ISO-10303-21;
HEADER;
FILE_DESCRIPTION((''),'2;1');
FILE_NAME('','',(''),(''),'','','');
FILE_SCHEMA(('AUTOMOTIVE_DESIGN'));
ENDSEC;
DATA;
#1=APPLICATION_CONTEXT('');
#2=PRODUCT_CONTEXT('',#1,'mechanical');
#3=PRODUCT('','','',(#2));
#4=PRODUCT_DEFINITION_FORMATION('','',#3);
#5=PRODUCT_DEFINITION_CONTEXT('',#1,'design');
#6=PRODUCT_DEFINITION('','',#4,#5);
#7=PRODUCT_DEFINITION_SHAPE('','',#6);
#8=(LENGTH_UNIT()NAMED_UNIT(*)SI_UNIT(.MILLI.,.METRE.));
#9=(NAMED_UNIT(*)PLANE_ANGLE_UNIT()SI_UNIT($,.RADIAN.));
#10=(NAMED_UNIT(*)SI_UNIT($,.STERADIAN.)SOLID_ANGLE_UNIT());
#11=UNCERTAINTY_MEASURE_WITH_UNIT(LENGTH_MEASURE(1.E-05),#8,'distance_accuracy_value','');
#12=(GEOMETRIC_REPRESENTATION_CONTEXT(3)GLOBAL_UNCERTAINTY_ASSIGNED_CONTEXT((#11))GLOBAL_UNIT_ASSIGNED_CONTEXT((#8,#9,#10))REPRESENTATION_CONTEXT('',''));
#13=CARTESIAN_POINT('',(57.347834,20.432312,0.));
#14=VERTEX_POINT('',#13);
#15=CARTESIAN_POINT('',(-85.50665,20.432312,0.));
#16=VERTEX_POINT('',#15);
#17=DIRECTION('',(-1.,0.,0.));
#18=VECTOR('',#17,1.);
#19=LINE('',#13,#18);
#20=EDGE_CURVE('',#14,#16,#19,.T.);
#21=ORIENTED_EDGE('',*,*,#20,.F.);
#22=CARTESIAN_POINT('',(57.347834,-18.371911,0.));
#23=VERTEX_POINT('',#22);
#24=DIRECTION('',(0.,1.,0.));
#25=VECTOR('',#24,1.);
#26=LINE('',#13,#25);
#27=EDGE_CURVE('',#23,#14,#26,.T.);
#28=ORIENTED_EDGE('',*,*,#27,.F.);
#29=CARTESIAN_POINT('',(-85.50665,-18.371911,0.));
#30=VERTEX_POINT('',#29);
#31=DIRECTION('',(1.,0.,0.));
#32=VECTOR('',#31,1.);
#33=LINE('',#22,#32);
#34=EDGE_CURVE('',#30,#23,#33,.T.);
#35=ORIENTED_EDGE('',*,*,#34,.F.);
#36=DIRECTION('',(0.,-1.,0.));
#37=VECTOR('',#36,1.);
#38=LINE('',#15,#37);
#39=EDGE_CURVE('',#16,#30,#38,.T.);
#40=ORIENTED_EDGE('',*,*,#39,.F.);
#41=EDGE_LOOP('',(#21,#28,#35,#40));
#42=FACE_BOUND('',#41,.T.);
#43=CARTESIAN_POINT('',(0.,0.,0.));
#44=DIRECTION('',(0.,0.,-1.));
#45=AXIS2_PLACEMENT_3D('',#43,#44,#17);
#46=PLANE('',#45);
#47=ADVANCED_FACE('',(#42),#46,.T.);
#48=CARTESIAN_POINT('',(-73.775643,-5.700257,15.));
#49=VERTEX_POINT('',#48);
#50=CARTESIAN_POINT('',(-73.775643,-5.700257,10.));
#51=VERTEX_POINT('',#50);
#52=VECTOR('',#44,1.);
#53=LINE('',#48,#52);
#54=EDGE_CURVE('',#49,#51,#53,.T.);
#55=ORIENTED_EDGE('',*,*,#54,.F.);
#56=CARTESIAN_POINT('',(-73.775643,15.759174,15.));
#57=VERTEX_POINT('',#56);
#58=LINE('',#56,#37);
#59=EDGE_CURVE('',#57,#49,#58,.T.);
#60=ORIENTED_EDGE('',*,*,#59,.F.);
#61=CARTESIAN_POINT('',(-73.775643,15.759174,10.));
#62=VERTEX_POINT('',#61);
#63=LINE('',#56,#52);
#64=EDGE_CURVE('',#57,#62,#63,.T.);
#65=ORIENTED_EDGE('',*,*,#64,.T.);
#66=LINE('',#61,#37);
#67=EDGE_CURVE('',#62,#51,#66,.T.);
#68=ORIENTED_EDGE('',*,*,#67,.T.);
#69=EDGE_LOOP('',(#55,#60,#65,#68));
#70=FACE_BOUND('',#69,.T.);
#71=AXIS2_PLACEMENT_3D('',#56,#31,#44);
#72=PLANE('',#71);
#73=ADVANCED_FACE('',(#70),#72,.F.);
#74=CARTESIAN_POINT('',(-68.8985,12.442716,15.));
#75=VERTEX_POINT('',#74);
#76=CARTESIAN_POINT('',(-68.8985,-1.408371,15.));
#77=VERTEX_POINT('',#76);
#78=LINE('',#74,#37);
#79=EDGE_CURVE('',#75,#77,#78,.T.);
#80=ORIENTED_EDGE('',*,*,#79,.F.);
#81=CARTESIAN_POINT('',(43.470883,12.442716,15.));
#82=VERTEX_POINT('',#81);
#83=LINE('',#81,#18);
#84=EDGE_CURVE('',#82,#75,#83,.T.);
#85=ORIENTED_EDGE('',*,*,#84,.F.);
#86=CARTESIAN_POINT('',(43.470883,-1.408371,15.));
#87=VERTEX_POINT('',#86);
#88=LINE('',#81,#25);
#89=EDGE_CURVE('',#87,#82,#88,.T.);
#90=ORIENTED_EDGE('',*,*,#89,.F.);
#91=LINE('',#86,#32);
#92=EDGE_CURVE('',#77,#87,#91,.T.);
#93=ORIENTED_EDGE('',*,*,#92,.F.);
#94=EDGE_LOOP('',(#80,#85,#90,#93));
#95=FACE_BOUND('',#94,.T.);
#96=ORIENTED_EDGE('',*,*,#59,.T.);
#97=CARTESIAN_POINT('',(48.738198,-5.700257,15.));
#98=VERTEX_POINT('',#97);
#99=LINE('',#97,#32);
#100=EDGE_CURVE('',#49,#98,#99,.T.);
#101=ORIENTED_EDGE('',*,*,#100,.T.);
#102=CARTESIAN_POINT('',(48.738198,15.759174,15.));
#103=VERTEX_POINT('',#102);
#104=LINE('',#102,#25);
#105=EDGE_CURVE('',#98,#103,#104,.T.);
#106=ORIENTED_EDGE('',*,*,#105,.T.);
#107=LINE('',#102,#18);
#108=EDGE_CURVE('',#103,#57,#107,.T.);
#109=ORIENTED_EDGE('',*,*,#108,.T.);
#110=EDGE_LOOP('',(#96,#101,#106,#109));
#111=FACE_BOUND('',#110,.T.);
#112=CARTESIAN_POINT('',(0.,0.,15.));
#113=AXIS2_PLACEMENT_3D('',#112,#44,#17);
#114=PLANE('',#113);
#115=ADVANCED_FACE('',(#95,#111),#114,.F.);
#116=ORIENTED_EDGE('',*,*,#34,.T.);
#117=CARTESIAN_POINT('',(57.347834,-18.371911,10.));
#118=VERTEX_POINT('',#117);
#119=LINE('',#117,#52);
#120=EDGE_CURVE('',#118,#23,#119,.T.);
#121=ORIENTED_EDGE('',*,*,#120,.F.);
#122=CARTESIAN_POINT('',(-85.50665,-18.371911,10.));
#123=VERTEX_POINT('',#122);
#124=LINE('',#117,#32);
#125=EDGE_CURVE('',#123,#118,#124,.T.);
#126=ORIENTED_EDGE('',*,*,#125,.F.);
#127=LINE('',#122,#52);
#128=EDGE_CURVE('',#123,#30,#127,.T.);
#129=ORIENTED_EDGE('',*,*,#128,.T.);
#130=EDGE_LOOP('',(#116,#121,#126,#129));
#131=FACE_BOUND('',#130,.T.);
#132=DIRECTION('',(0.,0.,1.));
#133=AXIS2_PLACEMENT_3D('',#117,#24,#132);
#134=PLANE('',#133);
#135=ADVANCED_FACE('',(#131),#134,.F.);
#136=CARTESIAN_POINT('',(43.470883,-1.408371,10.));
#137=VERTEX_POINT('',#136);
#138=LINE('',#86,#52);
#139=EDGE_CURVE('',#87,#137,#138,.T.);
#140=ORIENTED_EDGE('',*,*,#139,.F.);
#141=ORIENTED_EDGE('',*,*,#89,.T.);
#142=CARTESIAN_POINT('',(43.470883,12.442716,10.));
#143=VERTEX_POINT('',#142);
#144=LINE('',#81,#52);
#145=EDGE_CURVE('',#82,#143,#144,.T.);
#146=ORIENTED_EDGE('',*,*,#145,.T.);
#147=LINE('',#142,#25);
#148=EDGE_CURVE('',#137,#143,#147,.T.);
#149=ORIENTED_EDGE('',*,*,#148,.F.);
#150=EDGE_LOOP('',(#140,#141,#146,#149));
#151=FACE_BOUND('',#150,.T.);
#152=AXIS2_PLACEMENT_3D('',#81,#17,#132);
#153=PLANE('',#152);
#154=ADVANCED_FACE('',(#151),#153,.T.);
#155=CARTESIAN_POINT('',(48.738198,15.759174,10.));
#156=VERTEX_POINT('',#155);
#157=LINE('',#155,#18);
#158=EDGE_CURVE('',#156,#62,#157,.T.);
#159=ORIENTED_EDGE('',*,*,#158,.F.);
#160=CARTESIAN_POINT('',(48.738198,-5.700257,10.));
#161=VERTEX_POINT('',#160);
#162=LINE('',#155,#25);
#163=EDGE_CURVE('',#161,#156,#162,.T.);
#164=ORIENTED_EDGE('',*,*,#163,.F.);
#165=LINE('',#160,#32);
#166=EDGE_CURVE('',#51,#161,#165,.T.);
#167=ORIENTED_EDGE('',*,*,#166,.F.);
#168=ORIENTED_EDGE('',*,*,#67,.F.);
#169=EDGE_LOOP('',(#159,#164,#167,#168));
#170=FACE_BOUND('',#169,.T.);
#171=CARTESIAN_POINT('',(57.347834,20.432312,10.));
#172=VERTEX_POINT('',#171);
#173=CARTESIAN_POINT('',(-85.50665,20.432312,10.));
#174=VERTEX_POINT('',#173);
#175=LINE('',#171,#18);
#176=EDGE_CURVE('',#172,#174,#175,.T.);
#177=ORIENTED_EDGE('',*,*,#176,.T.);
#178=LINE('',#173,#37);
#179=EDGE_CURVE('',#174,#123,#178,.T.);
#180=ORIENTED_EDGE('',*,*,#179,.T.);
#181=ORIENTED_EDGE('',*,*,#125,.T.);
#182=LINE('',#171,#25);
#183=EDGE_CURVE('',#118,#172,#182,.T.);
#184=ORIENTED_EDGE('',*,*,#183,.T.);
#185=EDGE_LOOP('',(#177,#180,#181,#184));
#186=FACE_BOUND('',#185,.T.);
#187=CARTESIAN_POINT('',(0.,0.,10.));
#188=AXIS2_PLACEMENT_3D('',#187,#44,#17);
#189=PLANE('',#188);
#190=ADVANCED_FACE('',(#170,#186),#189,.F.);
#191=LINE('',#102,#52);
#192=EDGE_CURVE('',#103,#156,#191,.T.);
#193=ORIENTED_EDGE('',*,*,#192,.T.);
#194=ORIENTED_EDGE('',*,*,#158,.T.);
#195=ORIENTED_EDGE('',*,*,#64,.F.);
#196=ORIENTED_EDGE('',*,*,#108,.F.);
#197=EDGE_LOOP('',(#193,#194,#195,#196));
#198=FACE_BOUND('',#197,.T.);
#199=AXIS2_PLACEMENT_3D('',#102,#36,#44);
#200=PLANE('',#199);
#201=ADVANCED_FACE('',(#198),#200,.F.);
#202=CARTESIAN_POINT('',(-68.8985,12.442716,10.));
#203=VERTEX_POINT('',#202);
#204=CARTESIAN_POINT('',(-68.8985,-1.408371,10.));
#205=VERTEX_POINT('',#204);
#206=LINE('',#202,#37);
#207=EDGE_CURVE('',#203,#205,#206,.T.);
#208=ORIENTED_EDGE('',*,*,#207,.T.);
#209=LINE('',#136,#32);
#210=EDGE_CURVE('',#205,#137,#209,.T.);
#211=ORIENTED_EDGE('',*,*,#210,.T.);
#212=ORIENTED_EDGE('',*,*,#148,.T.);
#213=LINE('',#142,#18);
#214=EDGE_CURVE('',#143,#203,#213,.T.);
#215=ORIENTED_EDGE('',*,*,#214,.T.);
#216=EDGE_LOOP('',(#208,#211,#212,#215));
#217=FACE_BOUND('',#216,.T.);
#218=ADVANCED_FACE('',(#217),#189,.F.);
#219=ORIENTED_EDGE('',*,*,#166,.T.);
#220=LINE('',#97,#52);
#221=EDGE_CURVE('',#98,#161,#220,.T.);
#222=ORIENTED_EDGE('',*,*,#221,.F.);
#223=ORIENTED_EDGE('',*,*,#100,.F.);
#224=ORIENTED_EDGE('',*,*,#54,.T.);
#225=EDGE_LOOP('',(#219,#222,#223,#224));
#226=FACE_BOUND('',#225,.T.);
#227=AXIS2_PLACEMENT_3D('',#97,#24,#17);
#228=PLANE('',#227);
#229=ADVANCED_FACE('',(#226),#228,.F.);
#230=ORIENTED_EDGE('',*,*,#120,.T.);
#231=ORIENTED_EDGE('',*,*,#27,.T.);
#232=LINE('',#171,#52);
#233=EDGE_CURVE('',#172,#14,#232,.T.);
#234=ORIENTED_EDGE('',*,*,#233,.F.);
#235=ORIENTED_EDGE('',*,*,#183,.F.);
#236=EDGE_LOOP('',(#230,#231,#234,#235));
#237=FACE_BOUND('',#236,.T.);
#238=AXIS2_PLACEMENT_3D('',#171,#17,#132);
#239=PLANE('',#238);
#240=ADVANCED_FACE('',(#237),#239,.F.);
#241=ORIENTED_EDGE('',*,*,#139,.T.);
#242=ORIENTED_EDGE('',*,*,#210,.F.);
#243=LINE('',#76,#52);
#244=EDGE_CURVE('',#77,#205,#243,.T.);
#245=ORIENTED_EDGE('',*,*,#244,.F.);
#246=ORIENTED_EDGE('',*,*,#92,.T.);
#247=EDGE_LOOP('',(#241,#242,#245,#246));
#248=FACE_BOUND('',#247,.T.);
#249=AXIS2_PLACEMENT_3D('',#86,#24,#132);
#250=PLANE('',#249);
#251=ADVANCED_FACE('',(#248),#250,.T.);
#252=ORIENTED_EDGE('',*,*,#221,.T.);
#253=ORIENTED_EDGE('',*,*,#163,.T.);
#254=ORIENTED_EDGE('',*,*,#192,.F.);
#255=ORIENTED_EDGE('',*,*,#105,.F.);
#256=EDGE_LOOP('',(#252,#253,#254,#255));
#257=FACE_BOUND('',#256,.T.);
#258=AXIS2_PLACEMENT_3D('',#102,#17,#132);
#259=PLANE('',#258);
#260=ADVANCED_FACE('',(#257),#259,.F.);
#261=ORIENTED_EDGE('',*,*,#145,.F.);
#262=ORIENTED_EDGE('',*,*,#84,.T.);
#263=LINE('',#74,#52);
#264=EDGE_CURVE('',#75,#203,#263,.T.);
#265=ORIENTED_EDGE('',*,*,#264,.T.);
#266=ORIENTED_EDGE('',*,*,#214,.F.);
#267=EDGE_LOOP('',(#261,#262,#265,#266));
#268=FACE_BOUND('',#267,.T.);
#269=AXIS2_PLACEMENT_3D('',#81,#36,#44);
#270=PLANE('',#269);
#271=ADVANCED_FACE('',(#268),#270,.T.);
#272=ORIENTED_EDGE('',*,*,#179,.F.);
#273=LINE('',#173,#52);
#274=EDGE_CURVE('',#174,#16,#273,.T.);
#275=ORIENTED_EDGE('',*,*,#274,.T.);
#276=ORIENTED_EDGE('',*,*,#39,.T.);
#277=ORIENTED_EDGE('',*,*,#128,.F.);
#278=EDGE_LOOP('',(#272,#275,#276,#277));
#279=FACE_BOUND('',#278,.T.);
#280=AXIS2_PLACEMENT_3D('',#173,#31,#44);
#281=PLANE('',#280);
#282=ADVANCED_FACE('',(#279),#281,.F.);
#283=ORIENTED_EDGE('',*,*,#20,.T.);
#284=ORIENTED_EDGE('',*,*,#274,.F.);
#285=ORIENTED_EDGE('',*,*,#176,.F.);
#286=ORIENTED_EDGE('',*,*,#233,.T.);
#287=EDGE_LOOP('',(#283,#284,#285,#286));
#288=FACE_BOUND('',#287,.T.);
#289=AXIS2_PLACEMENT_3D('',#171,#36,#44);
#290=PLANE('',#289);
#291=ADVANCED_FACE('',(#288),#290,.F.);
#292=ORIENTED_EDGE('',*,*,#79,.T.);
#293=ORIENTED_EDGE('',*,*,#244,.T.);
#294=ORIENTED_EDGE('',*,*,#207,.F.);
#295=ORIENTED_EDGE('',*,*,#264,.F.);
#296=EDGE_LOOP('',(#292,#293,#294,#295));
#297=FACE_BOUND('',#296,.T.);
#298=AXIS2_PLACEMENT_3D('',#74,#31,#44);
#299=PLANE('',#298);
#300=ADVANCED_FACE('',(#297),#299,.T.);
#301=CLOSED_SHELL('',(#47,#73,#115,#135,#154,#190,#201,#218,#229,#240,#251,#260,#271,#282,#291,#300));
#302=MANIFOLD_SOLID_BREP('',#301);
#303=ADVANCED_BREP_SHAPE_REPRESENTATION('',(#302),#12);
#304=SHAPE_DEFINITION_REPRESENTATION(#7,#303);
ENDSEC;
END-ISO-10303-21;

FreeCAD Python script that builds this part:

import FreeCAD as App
import Part
import Sketcher

V = App.Vector


def add_polygon(sketch, points):
    """Adds a closed chain of lines whose ends are joined by coincident constraints."""
    first, n = sketch.GeometryCount, len(points)
    for a, b in zip(points, points[1:] + points[:1]):
        sketch.addGeometry(Part.LineSegment(App.Vector(*a, 0), App.Vector(*b, 0)), False)
    for i in range(n):
        sketch.addConstraint(Sketcher.Constraint("Coincident", first + i, 2, first + (i + 1) % n, 1))

doc = App.newDocument("Part")
params = doc.addObject("Spreadsheet::Sheet", "Params")
for row, (alias, value) in enumerate([
    ("pad1_length", "10 mm"),
    ("pad2_length", "5 mm"),
], start=1):
    params.set(f"A{row}", alias)
    params.set(f"B{row}", "=" + value)
    params.setAlias(f"B{row}", alias)

body = doc.addObject("PartDesign::Body", "Body")

sketch1 = body.newObject("Sketcher::SketchObject", "Sketch")
sketch1.AttachmentSupport = (doc.getObject("XY_Plane"), [""])
sketch1.MapMode = "FlatFace"
add_polygon(sketch1, [(-86, 20), (-86, -18), (57, -18), (57, 20)])
sketch1.addConstraint(Sketcher.Constraint("Vertical", 0))
sketch1.addConstraint(Sketcher.Constraint("Horizontal", 1))
sketch1.addConstraint(Sketcher.Constraint("Vertical", 2))
sketch1.addConstraint(Sketcher.Constraint("Horizontal", 3))
sketch1.addConstraint(Sketcher.Constraint("DistanceX", 1, 1, 1, 2, 142.854484))
sketch1.addConstraint(Sketcher.Constraint("DistanceY", 0, 2, 0, 1, 38.804223))
sketch1.addConstraint(Sketcher.Constraint("DistanceX", 0, 2, -1, 1, 85.50665))
sketch1.addConstraint(Sketcher.Constraint("DistanceY", 0, 2, -1, 1, 18.371911))
pad1 = body.newObject("PartDesign::Pad", "Pad")
pad1.Profile = sketch1
pad1.setExpression("Length", "Params.pad1_length")

sketch2 = body.newObject("Sketcher::SketchObject", "Sketch001")
sketch2.AttachmentSupport = (doc.getObject("XY_Plane"), [""])
sketch2.MapMode = "FlatFace"
sketch2.AttachmentOffset = App.Placement(V(0, 0, 10), App.Rotation())
add_polygon(sketch2, [(-74, 16), (-74, -6), (49, -6), (49, 16)])
add_polygon(sketch2, [(43, -1), (-69, -1), (-69, 12), (43, 12)])
sketch2.addConstraint(Sketcher.Constraint("Vertical", 0))
sketch2.addConstraint(Sketcher.Constraint("Horizontal", 1))
sketch2.addConstraint(Sketcher.Constraint("Vertical", 2))
sketch2.addConstraint(Sketcher.Constraint("Horizontal", 3))
sketch2.addConstraint(Sketcher.Constraint("Horizontal", 4))
sketch2.addConstraint(Sketcher.Constraint("Vertical", 5))
sketch2.addConstraint(Sketcher.Constraint("Horizontal", 6))
sketch2.addConstraint(Sketcher.Constraint("Vertical", 7))
sketch2.addConstraint(Sketcher.Constraint("DistanceX", 1, 1, 1, 2, 122.513842))
sketch2.addConstraint(Sketcher.Constraint("DistanceY", 0, 2, 0, 1, 21.459431))
sketch2.addConstraint(Sketcher.Constraint("DistanceX", -1, 1, 1, 2, 48.738198))
sketch2.addConstraint(Sketcher.Constraint("DistanceX", 4, 2, -1, 1, 68.8985))
sketch2.addConstraint(Sketcher.Constraint("DistanceX", 4, 2, 4, 1, 112.369383))
sketch2.addConstraint(Sketcher.Constraint("DistanceY", 5, 1, 5, 2, 13.851087))
sketch2.addConstraint(Sketcher.Constraint("DistanceY", 4, 2, -1, 1, 1.408371))
sketch2.addConstraint(Sketcher.Constraint("DistanceY", 0, 2, -1, 1, 5.700257))
pad2 = body.newObject("PartDesign::Pad", "Pad001")
pad2.Profile = sketch2
pad2.setExpression("Length", "Params.pad2_length")

doc.recompute()
